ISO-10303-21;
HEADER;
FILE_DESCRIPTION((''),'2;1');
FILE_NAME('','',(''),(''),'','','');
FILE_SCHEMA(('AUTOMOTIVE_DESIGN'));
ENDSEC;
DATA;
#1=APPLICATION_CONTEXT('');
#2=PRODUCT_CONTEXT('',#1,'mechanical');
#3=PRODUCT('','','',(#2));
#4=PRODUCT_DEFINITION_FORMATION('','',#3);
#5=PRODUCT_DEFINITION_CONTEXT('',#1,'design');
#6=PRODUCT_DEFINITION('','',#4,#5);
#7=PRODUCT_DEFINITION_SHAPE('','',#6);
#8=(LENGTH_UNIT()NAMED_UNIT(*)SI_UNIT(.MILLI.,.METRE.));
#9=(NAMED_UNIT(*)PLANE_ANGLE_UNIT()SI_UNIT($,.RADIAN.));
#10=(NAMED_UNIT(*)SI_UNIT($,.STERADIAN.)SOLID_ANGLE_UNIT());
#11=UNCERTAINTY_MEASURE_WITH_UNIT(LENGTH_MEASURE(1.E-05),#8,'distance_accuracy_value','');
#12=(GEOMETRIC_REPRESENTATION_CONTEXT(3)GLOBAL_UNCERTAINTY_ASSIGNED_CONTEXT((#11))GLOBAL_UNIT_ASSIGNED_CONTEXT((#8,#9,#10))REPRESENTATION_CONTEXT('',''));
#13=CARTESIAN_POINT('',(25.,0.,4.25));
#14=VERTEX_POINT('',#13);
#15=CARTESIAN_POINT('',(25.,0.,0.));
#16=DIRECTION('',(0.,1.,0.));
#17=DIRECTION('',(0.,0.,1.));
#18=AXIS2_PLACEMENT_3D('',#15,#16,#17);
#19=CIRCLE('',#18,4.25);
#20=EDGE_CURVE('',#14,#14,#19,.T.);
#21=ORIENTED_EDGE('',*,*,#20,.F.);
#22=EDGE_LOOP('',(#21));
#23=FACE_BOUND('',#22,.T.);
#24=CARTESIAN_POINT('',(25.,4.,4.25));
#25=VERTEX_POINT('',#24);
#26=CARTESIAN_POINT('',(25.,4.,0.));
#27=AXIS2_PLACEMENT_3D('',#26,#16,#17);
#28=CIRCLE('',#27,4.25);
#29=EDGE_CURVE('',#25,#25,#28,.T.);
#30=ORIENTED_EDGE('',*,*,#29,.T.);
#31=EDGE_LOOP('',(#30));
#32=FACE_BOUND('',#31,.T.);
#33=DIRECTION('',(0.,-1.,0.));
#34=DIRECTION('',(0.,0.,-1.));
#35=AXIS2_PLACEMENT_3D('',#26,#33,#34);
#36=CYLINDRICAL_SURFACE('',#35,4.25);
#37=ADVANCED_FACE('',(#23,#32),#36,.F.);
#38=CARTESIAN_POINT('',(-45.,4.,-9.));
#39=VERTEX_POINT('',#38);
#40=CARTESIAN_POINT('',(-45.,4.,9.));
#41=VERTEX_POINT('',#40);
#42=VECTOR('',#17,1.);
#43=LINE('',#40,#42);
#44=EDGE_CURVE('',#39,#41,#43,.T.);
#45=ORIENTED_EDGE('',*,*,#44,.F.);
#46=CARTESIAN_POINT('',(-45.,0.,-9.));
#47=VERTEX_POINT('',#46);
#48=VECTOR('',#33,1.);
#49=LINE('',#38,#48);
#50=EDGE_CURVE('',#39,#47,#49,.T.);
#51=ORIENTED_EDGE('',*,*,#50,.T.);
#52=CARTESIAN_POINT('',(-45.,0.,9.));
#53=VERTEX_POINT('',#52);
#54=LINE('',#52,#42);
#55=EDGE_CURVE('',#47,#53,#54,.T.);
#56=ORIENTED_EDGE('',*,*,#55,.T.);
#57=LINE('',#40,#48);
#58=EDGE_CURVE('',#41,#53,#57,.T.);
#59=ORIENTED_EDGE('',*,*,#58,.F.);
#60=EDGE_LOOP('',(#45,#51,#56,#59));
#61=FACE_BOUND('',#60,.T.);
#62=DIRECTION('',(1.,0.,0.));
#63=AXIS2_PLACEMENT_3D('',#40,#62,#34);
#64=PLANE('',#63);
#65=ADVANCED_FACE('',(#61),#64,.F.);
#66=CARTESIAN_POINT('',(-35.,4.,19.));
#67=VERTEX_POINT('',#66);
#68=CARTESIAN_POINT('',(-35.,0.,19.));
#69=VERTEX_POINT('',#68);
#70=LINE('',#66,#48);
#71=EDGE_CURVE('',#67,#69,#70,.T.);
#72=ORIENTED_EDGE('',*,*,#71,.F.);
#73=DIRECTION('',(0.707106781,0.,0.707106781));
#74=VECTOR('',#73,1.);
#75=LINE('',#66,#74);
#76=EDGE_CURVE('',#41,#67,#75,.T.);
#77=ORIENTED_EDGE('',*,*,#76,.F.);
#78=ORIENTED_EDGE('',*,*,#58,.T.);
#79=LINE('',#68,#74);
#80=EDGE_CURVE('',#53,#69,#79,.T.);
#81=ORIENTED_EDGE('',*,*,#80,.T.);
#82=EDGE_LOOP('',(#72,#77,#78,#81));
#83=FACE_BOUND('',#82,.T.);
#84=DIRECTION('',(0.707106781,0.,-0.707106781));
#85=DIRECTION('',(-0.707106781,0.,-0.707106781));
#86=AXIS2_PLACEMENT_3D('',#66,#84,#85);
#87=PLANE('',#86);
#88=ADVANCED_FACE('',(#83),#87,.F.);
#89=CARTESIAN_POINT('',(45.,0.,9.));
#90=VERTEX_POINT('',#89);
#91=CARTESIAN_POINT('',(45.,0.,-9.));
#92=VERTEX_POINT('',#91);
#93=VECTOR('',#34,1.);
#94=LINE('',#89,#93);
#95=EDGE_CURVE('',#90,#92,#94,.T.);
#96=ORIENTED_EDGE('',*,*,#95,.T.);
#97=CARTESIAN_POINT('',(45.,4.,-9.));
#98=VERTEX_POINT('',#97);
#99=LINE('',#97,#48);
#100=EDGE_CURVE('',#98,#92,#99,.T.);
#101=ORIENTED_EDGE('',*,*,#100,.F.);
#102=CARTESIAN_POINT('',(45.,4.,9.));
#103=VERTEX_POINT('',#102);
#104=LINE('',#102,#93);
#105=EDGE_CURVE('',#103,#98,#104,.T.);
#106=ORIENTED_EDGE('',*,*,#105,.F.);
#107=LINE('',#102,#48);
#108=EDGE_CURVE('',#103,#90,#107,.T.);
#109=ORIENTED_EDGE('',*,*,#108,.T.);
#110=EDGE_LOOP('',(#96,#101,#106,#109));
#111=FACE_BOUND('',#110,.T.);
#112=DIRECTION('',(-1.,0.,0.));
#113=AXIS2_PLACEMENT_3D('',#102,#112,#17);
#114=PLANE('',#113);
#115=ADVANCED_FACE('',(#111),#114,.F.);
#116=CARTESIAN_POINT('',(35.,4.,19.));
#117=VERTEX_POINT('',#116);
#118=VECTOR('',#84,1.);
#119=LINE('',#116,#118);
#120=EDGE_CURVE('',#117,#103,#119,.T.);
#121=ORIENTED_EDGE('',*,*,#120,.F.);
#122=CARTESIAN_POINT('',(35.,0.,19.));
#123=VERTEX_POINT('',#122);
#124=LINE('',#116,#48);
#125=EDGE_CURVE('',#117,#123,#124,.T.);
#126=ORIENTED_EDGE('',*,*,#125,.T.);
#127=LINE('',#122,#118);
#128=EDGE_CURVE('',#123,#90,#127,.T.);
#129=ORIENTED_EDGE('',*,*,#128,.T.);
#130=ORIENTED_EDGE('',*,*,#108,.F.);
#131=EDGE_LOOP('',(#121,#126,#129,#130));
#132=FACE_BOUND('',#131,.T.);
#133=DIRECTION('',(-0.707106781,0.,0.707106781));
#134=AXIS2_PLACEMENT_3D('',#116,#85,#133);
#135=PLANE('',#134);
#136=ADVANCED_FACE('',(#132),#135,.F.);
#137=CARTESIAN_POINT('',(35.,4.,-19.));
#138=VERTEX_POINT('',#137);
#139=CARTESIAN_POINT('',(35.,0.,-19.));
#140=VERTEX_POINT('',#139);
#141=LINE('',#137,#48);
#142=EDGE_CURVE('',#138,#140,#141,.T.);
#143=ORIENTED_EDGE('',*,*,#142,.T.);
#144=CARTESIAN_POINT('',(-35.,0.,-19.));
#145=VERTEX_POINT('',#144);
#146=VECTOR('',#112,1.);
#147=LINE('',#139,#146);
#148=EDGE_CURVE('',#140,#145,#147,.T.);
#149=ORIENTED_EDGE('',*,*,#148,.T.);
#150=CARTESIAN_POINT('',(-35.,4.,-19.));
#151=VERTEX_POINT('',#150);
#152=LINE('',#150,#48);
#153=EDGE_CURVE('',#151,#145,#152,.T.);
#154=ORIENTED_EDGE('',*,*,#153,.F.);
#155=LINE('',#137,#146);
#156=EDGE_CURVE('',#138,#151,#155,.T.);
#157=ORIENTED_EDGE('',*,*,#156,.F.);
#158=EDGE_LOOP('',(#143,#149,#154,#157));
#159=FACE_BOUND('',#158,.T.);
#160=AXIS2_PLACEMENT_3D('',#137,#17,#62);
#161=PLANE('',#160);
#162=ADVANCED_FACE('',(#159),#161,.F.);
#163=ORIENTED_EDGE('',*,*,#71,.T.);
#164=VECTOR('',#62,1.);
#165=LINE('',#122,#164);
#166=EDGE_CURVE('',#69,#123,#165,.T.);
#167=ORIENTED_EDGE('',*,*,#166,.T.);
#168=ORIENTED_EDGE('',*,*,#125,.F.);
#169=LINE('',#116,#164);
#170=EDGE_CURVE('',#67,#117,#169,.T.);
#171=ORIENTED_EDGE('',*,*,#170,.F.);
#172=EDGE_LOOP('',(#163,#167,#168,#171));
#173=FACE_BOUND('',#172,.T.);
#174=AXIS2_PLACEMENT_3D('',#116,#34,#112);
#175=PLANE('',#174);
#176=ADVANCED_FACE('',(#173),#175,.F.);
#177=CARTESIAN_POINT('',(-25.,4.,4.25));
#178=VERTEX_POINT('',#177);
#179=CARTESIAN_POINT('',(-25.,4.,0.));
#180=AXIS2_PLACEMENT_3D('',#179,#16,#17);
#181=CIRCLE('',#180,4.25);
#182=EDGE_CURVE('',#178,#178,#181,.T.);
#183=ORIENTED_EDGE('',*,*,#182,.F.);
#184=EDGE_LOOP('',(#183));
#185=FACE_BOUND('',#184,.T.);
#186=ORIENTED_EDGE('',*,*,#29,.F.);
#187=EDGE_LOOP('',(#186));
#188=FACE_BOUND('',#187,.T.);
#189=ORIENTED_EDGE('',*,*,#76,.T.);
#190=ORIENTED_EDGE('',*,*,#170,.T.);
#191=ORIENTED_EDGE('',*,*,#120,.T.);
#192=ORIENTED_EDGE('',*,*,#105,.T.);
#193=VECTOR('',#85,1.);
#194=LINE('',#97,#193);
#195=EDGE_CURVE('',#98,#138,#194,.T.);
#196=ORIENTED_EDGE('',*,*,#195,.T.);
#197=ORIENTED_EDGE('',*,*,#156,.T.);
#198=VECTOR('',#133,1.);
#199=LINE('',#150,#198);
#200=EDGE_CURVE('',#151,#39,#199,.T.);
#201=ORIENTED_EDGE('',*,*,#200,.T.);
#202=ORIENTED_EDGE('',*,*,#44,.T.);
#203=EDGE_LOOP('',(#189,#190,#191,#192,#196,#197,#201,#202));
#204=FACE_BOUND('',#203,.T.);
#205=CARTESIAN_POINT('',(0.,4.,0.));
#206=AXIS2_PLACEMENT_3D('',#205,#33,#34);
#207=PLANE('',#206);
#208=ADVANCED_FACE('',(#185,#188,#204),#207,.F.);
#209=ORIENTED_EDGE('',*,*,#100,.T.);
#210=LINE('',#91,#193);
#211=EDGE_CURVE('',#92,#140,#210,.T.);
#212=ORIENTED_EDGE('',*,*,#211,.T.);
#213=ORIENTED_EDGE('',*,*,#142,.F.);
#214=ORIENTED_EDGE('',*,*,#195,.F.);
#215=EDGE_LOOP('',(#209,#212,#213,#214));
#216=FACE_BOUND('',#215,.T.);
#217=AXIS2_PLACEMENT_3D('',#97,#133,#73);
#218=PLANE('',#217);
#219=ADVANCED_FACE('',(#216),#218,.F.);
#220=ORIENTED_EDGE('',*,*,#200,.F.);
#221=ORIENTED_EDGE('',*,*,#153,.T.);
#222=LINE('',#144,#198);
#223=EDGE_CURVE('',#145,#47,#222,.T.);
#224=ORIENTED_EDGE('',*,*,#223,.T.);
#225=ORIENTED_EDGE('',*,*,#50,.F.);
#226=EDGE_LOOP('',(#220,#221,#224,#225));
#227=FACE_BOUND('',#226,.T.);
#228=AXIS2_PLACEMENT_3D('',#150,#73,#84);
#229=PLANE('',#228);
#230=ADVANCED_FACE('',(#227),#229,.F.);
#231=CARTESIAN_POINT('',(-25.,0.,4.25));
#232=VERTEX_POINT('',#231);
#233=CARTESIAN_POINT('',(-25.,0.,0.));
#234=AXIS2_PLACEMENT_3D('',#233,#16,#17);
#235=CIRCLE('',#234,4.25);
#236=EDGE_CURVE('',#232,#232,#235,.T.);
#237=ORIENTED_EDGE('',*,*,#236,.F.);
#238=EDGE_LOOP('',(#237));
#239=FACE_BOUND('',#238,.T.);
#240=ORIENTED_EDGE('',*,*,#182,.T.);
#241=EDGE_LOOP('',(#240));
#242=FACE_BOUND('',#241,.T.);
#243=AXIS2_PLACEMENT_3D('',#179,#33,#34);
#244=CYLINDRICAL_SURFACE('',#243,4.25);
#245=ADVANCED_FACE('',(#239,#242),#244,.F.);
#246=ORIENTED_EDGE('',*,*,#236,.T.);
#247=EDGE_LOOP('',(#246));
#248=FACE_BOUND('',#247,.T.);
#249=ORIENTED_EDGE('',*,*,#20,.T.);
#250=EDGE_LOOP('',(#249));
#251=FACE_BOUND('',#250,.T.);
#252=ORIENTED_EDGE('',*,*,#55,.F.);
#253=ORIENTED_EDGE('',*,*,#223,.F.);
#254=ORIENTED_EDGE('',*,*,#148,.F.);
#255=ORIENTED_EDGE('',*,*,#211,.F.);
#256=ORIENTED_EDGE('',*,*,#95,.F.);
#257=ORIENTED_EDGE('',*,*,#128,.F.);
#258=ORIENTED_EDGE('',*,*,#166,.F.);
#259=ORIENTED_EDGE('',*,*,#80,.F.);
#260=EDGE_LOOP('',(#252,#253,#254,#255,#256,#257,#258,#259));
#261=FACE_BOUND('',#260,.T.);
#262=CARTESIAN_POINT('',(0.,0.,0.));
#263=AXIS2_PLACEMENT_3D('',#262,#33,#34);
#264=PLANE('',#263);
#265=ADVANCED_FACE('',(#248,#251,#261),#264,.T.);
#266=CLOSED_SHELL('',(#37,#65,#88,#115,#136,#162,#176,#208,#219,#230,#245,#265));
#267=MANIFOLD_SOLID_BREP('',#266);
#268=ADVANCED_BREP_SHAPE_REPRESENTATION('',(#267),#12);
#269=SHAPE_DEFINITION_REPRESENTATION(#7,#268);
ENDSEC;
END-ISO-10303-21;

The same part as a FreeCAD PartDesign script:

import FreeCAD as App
import Part
import Sketcher

V = App.Vector

doc = App.newDocument("Part")
body = doc.addObject("PartDesign::Body", "Body")

# Sketch on XZ plane
sketch1 = body.newObject("Sketcher::SketchObject", "Sketch")
sketch1.AttachmentSupport = (doc.getObject("XZ_Plane"), [""])
sketch1.MapMode = "FlatFace"
sketch1.addGeometry(Part.LineSegment(V(45, 9, 0), V(45, -9, 0)), False)
sketch1.addGeometry(Part.LineSegment(V(45, -9, 0), V(35, -19, 0)), False)
sketch1.addGeometry(Part.LineSegment(V(35, -19, 0), V(-35, -19, 0)), False)
sketch1.addGeometry(Part.LineSegment(V(-35, -19, 0), V(-45, -9, 0)), False)
sketch1.addGeometry(Part.LineSegment(V(-45, -9, 0), V(-45, 9, 0)), False)
sketch1.addGeometry(Part.LineSegment(V(-45, 9, 0), V(-35, 19, 0)), False)
sketch1.addGeometry(Part.LineSegment(V(-35, 19, 0), V(35, 19, 0)), False)
sketch1.addGeometry(Part.LineSegment(V(35, 19, 0), V(45, 9, 0)), False)
sketch1.addGeometry(Part.Circle(V(-25, 0, 0), V(0, 0, 1), 4.2), False)
sketch1.addGeometry(Part.Circle(V(25, 0, 0), V(0, 0, 1), 4.2), False)
sketch1.addConstraint(Sketcher.Constraint("Coincident", 0, 2, 1, 1))
sketch1.addConstraint(Sketcher.Constraint("Coincident", 1, 2, 2, 1))
sketch1.addConstraint(Sketcher.Constraint("Coincident", 2, 2, 3, 1))
sketch1.addConstraint(Sketcher.Constraint("Coincident", 3, 2, 4, 1))
sketch1.addConstraint(Sketcher.Constraint("Coincident", 4, 2, 5, 1))
sketch1.addConstraint(Sketcher.Constraint("Coincident", 5, 2, 6, 1))
sketch1.addConstraint(Sketcher.Constraint("Coincident", 6, 2, 7, 1))
sketch1.addConstraint(Sketcher.Constraint("Coincident", 7, 2, 0, 1))
sketch1.addConstraint(Sketcher.Constraint("Vertical", 0))
sketch1.addConstraint(Sketcher.Constraint("Horizontal", 2))
sketch1.addConstraint(Sketcher.Constraint("Vertical", 4))
sketch1.addConstraint(Sketcher.Constraint("Horizontal", 6))
sketch1.addConstraint(Sketcher.Constraint("Equal", 8, 9))
sketch1.addConstraint(Sketcher.Constraint("Symmetric", 8, 3, 9, 3, -1, 1))
sketch1.addConstraint(Sketcher.Constraint("Symmetric", 0, 2, 4, 2, -1, 1))
sketch1.addConstraint(Sketcher.Constraint("Symmetric", 1, 2, 5, 2, -1, 1))
sketch1.addConstraint(Sketcher.Constraint("PointOnObject", 8, 3, -1))
sketch1.addConstraint(Sketcher.Constraint("Perpendicular", 1, 3))
sketch1.addConstraint(Sketcher.Constraint("Perpendicular", 5, 7))
sketch1.addConstraint(Sketcher.Constraint("Horizontal", 0, 2, 3, 2))
sketch1.addConstraint(Sketcher.Constraint("Horizontal", 4, 2, 7, 2))
sketch1.addConstraint(Sketcher.Constraint("Vertical", 2, 2, 5, 2))
sketch1.addConstraint(Sketcher.Constraint("Diameter", 8, 8.5))
sketch1.addConstraint(Sketcher.Constraint("DistanceX", 2, 2, 2, 1, 70.0))
sketch1.addConstraint(Sketcher.Constraint("DistanceY", 0, 2, 0, 1, 18.0))
sketch1.addConstraint(Sketcher.Constraint("DistanceX", 8, 3, -1, 1, 25.0))
sketch1.addConstraint(Sketcher.Constraint("DistanceX", -1, 1, 0, 2, 45.0))
pad1 = body.newObject("PartDesign::Pad", "Pad")
pad1.Profile = sketch1
pad1.Length = 4
pad1.Reversed = True

doc.recompute()
